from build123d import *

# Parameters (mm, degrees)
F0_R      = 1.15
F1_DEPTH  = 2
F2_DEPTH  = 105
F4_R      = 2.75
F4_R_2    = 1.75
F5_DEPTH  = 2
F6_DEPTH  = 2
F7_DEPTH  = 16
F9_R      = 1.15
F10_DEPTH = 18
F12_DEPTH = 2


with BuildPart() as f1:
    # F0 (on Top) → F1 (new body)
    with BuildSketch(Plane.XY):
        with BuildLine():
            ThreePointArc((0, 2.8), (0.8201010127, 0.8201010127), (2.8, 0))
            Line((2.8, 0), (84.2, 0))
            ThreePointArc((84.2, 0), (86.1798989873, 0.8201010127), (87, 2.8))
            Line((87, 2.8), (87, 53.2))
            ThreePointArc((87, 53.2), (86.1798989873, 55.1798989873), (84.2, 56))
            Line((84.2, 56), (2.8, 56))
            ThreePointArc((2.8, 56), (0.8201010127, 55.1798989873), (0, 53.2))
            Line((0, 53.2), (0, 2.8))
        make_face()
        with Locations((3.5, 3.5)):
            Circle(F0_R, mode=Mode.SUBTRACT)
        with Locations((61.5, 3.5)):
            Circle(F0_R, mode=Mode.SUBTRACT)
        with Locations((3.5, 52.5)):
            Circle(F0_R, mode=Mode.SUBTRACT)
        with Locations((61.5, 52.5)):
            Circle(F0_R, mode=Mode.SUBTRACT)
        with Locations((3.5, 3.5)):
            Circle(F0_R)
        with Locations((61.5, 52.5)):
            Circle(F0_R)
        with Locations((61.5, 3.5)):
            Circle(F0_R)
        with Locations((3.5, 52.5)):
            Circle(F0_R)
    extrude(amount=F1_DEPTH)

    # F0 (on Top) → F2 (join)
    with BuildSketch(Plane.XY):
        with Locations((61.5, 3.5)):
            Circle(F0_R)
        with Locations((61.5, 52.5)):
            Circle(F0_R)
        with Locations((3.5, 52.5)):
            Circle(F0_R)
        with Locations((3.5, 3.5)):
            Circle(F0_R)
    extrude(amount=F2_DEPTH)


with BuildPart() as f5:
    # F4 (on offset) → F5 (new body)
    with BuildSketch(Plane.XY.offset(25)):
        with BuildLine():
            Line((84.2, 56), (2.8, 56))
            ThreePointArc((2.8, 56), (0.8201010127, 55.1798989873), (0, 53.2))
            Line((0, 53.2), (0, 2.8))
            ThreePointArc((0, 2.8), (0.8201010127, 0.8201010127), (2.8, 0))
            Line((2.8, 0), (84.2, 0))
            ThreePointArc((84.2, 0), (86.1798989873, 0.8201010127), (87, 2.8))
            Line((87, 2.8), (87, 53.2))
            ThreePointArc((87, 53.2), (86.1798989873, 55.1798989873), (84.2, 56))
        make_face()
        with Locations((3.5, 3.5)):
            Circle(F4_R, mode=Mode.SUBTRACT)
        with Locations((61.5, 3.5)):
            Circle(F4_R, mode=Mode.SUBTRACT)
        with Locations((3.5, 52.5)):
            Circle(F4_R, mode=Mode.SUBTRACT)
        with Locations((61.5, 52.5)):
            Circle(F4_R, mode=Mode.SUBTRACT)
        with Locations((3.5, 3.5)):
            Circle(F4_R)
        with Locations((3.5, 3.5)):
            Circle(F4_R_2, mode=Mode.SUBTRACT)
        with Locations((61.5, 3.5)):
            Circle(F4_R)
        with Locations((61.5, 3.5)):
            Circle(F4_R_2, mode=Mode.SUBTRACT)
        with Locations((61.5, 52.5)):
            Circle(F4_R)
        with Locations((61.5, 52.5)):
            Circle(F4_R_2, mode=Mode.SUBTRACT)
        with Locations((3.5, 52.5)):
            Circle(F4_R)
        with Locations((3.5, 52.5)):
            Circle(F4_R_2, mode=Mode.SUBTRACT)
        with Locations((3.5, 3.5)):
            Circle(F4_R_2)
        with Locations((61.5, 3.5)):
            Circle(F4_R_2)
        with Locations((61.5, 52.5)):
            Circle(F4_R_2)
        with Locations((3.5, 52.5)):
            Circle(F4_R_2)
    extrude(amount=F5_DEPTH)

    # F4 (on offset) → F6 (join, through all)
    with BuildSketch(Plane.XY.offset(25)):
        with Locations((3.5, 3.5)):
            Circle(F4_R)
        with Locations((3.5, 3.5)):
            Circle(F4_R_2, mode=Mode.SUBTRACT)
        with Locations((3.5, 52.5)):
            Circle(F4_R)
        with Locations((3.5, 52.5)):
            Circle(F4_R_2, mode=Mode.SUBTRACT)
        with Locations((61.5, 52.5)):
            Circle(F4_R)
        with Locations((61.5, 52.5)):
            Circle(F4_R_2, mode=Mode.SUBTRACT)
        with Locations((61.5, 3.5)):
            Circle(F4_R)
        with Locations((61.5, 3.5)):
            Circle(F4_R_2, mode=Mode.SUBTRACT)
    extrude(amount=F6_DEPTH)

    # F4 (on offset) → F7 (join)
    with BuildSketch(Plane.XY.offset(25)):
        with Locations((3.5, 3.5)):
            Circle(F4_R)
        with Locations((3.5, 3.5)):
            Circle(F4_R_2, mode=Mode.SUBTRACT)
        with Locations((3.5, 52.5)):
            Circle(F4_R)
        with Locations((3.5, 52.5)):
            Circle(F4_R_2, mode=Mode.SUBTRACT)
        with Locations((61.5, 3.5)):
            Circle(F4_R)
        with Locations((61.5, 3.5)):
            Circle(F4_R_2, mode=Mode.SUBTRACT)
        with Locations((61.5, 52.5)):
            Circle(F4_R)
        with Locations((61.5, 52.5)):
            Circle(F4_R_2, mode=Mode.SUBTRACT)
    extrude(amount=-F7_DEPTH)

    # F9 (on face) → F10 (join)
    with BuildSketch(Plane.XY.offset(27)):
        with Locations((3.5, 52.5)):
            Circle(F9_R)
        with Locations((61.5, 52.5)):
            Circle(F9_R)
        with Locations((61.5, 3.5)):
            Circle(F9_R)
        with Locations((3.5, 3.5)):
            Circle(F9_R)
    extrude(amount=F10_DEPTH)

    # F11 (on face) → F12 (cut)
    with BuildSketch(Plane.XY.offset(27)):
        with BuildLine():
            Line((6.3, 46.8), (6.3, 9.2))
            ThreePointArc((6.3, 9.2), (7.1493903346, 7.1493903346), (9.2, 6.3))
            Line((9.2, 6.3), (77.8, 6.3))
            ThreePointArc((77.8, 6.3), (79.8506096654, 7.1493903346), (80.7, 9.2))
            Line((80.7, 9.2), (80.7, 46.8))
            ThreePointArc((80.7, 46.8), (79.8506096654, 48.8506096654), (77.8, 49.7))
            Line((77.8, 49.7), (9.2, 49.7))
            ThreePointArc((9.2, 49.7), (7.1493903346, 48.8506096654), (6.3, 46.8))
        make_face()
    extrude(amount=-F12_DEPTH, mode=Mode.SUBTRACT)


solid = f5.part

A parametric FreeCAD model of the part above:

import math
import FreeCAD as App
import Part
import Sketcher

doc = App.newDocument("Part")
params = doc.addObject("Spreadsheet::Sheet", "Params")
for row, (alias, value) in enumerate([
    ("sketch1_radius", "2.8 mm"),
    ("sketch1_width", "81.4 mm"),
    ("sketch1_height", "50.4 mm"),
    ("pad1_length", "2 mm"),
    ("sketch2_diameter", "2.3 mm"),
    ("pad2_length", "105 mm"),
    ("sketch3_radius", "2.8 mm"),
    ("sketch3_width", "81.4 mm"),
    ("sketch3_height", "50.4 mm"),
    ("pad3_length", "2 mm"),
    ("sketch4_diameter", "5.5 mm"),
    ("sketch4_diameter2", "3.5 mm"),
    ("sketch5_diameter", "5.5 mm"),
    ("sketch5_diameter2", "3.5 mm"),
    ("pad5_length", "16 mm"),
    ("sketch6_diameter", "2.3 mm"),
    ("pad6_length", "18 mm"),
    ("sketch7_radius", "2.9 mm"),
    ("sketch7_width", "68.6 mm"),
    ("sketch7_height", "37.6 mm"),
    ("pocket1_length", "2 mm"),
], start=1):
    params.set(f"A{row}", alias)
    params.set(f"B{row}", "=" + value)
    params.setAlias(f"B{row}", alias)

body = doc.addObject("PartDesign::Body", "Body")

sketch1 = body.newObject("Sketcher::SketchObject", "Sketch")
sketch1.AttachmentSupport = (doc.getObject("XY_Plane"), [""])
sketch1.MapMode = "FlatFace"
sketch1.addGeometry(Part.ArcOfCircle(Part.Circle(App.Vector(2.8, 2.8, 0), App.Vector(0, 0, 1), 2.8), math.radians(180), math.radians(270)), False)
sketch1.addGeometry(Part.LineSegment(App.Vector(2.8, 0, 0), App.Vector(84.2, 0, 0)), False)
sketch1.addGeometry(Part.ArcOfCircle(Part.Circle(App.Vector(84.2, 2.8, 0), App.Vector(0, 0, 1), 2.8), math.radians(-90), math.radians(0)), False)
sketch1.addGeometry(Part.LineSegment(App.Vector(87, 2.8, 0), App.Vector(87, 53.2, 0)), False)
sketch1.addGeometry(Part.ArcOfCircle(Part.Circle(App.Vector(84.2, 53.2, 0), App.Vector(0, 0, 1), 2.8), math.radians(0), math.radians(90)), False)
sketch1.addGeometry(Part.LineSegment(App.Vector(84.2, 56, 0), App.Vector(2.8, 56, 0)), False)
sketch1.addGeometry(Part.ArcOfCircle(Part.Circle(App.Vector(2.8, 53.2, 0), App.Vector(0, 0, 1), 2.8), math.radians(90), math.radians(180)), False)
sketch1.addGeometry(Part.LineSegment(App.Vector(0, 53.2, 0), App.Vector(0, 2.8, 0)), False)
sketch1.addConstraint(Sketcher.Constraint("Tangent", 0, 2, 1, 1))
sketch1.addConstraint(Sketcher.Constraint("Tangent", 1, 2, 2, 1))
sketch1.addConstraint(Sketcher.Constraint("Tangent", 2, 2, 3, 1))
sketch1.addConstraint(Sketcher.Constraint("Tangent", 3, 2, 4, 1))
sketch1.addConstraint(Sketcher.Constraint("Tangent", 4, 2, 5, 1))
sketch1.addConstraint(Sketcher.Constraint("Tangent", 5, 2, 6, 1))
sketch1.addConstraint(Sketcher.Constraint("Tangent", 6, 2, 7, 1))
sketch1.addConstraint(Sketcher.Constraint("Tangent", 7, 2, 0, 1))
sketch1.addConstraint(Sketcher.Constraint("Horizontal", 1))
sketch1.addConstraint(Sketcher.Constraint("Vertical", 3))
sketch1.addConstraint(Sketcher.Constraint("Horizontal", 5))
sketch1.addConstraint(Sketcher.Constraint("Vertical", 7))
sketch1.addConstraint(Sketcher.Constraint("Equal", 0, 2))
sketch1.addConstraint(Sketcher.Constraint("Equal", 2, 4))
sketch1.addConstraint(Sketcher.Constraint("Equal", 4, 6))
sketch1.addConstraint(Sketcher.Constraint("PointOnObject", 0, 2, -1))
sketch1.addConstraint(Sketcher.Constraint("PointOnObject", 6, 2, -2))
sketch1.addConstraint(Sketcher.Constraint("Radius", 0, 2.8))
sketch1.addConstraint(Sketcher.Constraint("DistanceX", 1, 1, 1, 2, 81.4))
sketch1.addConstraint(Sketcher.Constraint("DistanceY", 3, 1, 3, 2, 50.4))
sketch1.setExpression("Constraints[17]", "Params.sketch1_radius")
sketch1.setExpression("Constraints[18]", "Params.sketch1_width")
sketch1.setExpression("Constraints[19]", "Params.sketch1_height")
pad1 = body.newObject("PartDesign::Pad", "Pad")
pad1.Profile = sketch1
pad1.setExpression("Length", "Params.pad1_length")

sketch2 = body.newObject("Sketcher::SketchObject", "Sketch001")
sketch2.AttachmentSupport = (doc.getObject("XY_Plane"), [""])
sketch2.MapMode = "FlatFace"
sketch2.addGeometry(Part.Circle(App.Vector(61.5, 3.5, 0), App.Vector(0, 0, 1), 1.1), False)
sketch2.addGeometry(Part.Circle(App.Vector(61.5, 52.5, 0), App.Vector(0, 0, 1), 1.1), False)
sketch2.addGeometry(Part.Circle(App.Vector(3.5, 52.5, 0), App.Vector(0, 0, 1), 1.1), False)
sketch2.addGeometry(Part.Circle(App.Vector(3.5, 3.5, 0), App.Vector(0, 0, 1), 1.1), False)
sketch2.addConstraint(Sketcher.Constraint("Equal", 0, 1))
sketch2.addConstraint(Sketcher.Constraint("Equal", 1, 2))
sketch2.addConstraint(Sketcher.Constraint("Equal", 2, 3))
sketch2.addConstraint(Sketcher.Constraint("Horizontal", 1, 3, 2, 3))
sketch2.addConstraint(Sketcher.Constraint("Horizontal", 0, 3, 3, 3))
sketch2.addConstraint(Sketcher.Constraint("Vertical", 0, 3, 1, 3))
sketch2.addConstraint(Sketcher.Constraint("Vertical", 2, 3, 3, 3))
sketch2.addConstraint(Sketcher.Constraint("Diameter", 0, 2.3))
sketch2.addConstraint(Sketcher.Constraint("DistanceY", 0, 3, 1, 3, 49.0))
sketch2.addConstraint(Sketcher.Constraint("DistanceX", 2, 3, 1, 3, 58.0))
sketch2.addConstraint(Sketcher.Constraint("DistanceX", -1, 1, 0, 3, 61.5))
sketch2.addConstraint(Sketcher.Constraint("DistanceY", -1, 1, 0, 3, 3.5))
sketch2.setExpression("Constraints[7]", "Params.sketch2_diameter")
pad2 = body.newObject("PartDesign::Pad", "Pad001")
pad2.Profile = sketch2
pad2.setExpression("Length", "Params.pad2_length")
body2 = doc.addObject("PartDesign::Body", "Body001")

sketch3 = body2.newObject("Sketcher::SketchObject", "Sketch002")
sketch3.AttachmentSupport = (doc.getObject("XY_Plane001"), [""])
sketch3.MapMode = "FlatFace"
sketch3.AttachmentOffset = App.Placement(App.Vector(0, 0, 25), App.Rotation())
sketch3.addGeometry(Part.LineSegment(App.Vector(84.2, 56, 0), App.Vector(2.8, 56, 0)), False)
sketch3.addGeometry(Part.ArcOfCircle(Part.Circle(App.Vector(2.8, 53.2, 0), App.Vector(0, 0, 1), 2.8), math.radians(90), math.radians(180)), False)
sketch3.addGeometry(Part.LineSegment(App.Vector(0, 53.2, 0), App.Vector(0, 2.8, 0)), False)
sketch3.addGeometry(Part.ArcOfCircle(Part.Circle(App.Vector(2.8, 2.8, 0), App.Vector(0, 0, 1), 2.8), math.radians(180), math.radians(270)), False)
sketch3.addGeometry(Part.LineSegment(App.Vector(2.8, 0, 0), App.Vector(84.2, 0, 0)), False)
sketch3.addGeometry(Part.ArcOfCircle(Part.Circle(App.Vector(84.2, 2.8, 0), App.Vector(0, 0, 1), 2.8), math.radians(-90), math.radians(0)), False)
sketch3.addGeometry(Part.LineSegment(App.Vector(87, 2.8, 0), App.Vector(87, 53.2, 0)), False)
sketch3.addGeometry(Part.ArcOfCircle(Part.Circle(App.Vector(84.2, 53.2, 0), App.Vector(0, 0, 1), 2.8), math.radians(0), math.radians(90)), False)
sketch3.addConstraint(Sketcher.Constraint("Tangent", 0, 2, 1, 1))
sketch3.addConstraint(Sketcher.Constraint("Tangent", 1, 2, 2, 1))
sketch3.addConstraint(Sketcher.Constraint("Tangent", 2, 2, 3, 1))
sketch3.addConstraint(Sketcher.Constraint("Tangent", 3, 2, 4, 1))
sketch3.addConstraint(Sketcher.Constraint("Tangent", 4, 2, 5, 1))
sketch3.addConstraint(Sketcher.Constraint("Tangent", 5, 2, 6, 1))
sketch3.addConstraint(Sketcher.Constraint("Tangent", 6, 2, 7, 1))
sketch3.addConstraint(Sketcher.Constraint("Tangent", 7, 2, 0, 1))
sketch3.addConstraint(Sketcher.Constraint("Horizontal", 0))
sketch3.addConstraint(Sketcher.Constraint("Vertical", 2))
sketch3.addConstraint(Sketcher.Constraint("Horizontal", 4))
sketch3.addConstraint(Sketcher.Constraint("Vertical", 6))
sketch3.addConstraint(Sketcher.Constraint("Equal", 1, 3))
sketch3.addConstraint(Sketcher.Constraint("Equal", 3, 5))
sketch3.addConstraint(Sketcher.Constraint("Equal", 5, 7))
sketch3.addConstraint(Sketcher.Constraint("PointOnObject", 1, 2, -2))
sketch3.addConstraint(Sketcher.Constraint("PointOnObject", 3, 2, -1))
sketch3.addConstraint(Sketcher.Constraint("Radius", 1, 2.8))
sketch3.addConstraint(Sketcher.Constraint("DistanceX", 0, 2, 0, 1, 81.4))
sketch3.addConstraint(Sketcher.Constraint("DistanceY", 2, 2, 2, 1, 50.4))
sketch3.setExpression("Constraints[17]", "Params.sketch3_radius")
sketch3.setExpression("Constraints[18]", "Params.sketch3_width")
sketch3.setExpression("Constraints[19]", "Params.sketch3_height")
pad3 = body2.newObject("PartDesign::Pad", "Pad002")
pad3.Profile = sketch3
pad3.setExpression("Length", "Params.pad3_length")

sketch4 = body2.newObject("Sketcher::SketchObject", "Sketch003")
sketch4.AttachmentSupport = (doc.getObject("XY_Plane001"), [""])
sketch4.MapMode = "FlatFace"
sketch4.AttachmentOffset = App.Placement(App.Vector(0, 0, 25), App.Rotation())
sketch4.addGeometry(Part.Circle(App.Vector(3.5, 3.5, 0), App.Vector(0, 0, 1), 2.8), False)
sketch4.addGeometry(Part.Circle(App.Vector(3.5, 3.5, 0), App.Vector(0, 0, 1), 1.8), False)
sketch4.addGeometry(Part.Circle(App.Vector(3.5, 52.5, 0), App.Vector(0, 0, 1), 2.8), False)
sketch4.addGeometry(Part.Circle(App.Vector(3.5, 52.5, 0), App.Vector(0, 0, 1), 1.8), False)
sketch4.addGeometry(Part.Circle(App.Vector(61.5, 52.5, 0), App.Vector(0, 0, 1), 2.8), False)
sketch4.addGeometry(Part.Circle(App.Vector(61.5, 52.5, 0), App.Vector(0, 0, 1), 1.8), False)
sketch4.addGeometry(Part.Circle(App.Vector(61.5, 3.5, 0), App.Vector(0, 0, 1), 2.8), False)
sketch4.addGeometry(Part.Circle(App.Vector(61.5, 3.5, 0), App.Vector(0, 0, 1), 1.8), False)
sketch4.addConstraint(Sketcher.Constraint("Coincident", 1, 3, 0, 3))
sketch4.addConstraint(Sketcher.Constraint("Coincident", 3, 3, 2, 3))
sketch4.addConstraint(Sketcher.Constraint("Coincident", 5, 3, 4, 3))
sketch4.addConstraint(Sketcher.Constraint("Coincident", 7, 3, 6, 3))
sketch4.addConstraint(Sketcher.Constraint("Equal", 0, 2))
sketch4.addConstraint(Sketcher.Constraint("Equal", 1, 3))
sketch4.addConstraint(Sketcher.Constraint("Equal", 2, 4))
sketch4.addConstraint(Sketcher.Constraint("Equal", 3, 5))
sketch4.addConstraint(Sketcher.Constraint("Equal", 4, 6))
sketch4.addConstraint(Sketcher.Constraint("Equal", 5, 7))
sketch4.addConstraint(Sketcher.Constraint("Horizontal", 3, 3, 4, 3))
sketch4.addConstraint(Sketcher.Constraint("Horizontal", 1, 3, 6, 3))
sketch4.addConstraint(Sketcher.Constraint("Vertical", 1, 3, 2, 3))
sketch4.addConstraint(Sketcher.Constraint("Vertical", 5, 3, 6, 3))
sketch4.addConstraint(Sketcher.Constraint("Diameter", 0, 5.5))
sketch4.addConstraint(Sketcher.Constraint("Diameter", 1, 3.5))
sketch4.addConstraint(Sketcher.Constraint("DistanceY", 0, 3, 2, 3, 49.0))
sketch4.addConstraint(Sketcher.Constraint("DistanceX", 2, 3, 4, 3, 58.0))
sketch4.addConstraint(Sketcher.Constraint("DistanceX", -1, 1, 0, 3, 3.5))
sketch4.addConstraint(Sketcher.Constraint("DistanceY", -1, 1, 0, 3, 3.5))
sketch4.setExpression("Constraints[14]", "Params.sketch4_diameter")
sketch4.setExpression("Constraints[15]", "Params.sketch4_diameter2")
pad4 = body2.newObject("PartDesign::Pad", "Pad003")
pad4.Profile = sketch4
pad4.Type = "UpToLast"

sketch5 = body2.newObject("Sketcher::SketchObject", "Sketch004")
sketch5.AttachmentSupport = (doc.getObject("XY_Plane001"), [""])
sketch5.MapMode = "FlatFace"
sketch5.AttachmentOffset = App.Placement(App.Vector(0, 0, 25), App.Rotation())
sketch5.addGeometry(Part.Circle(App.Vector(3.5, 3.5, 0), App.Vector(0, 0, 1), 2.8), False)
sketch5.addGeometry(Part.Circle(App.Vector(3.5, 3.5, 0), App.Vector(0, 0, 1), 1.8), False)
sketch5.addGeometry(Part.Circle(App.Vector(3.5, 52.5, 0), App.Vector(0, 0, 1), 2.8), False)
sketch5.addGeometry(Part.Circle(App.Vector(3.5, 52.5, 0), App.Vector(0, 0, 1), 1.8), False)
sketch5.addGeometry(Part.Circle(App.Vector(61.5, 3.5, 0), App.Vector(0, 0, 1), 2.8), False)
sketch5.addGeometry(Part.Circle(App.Vector(61.5, 3.5, 0), App.Vector(0, 0, 1), 1.8), False)
sketch5.addGeometry(Part.Circle(App.Vector(61.5, 52.5, 0), App.Vector(0, 0, 1), 2.8), False)
sketch5.addGeometry(Part.Circle(App.Vector(61.5, 52.5, 0), App.Vector(0, 0, 1), 1.8), False)
sketch5.addConstraint(Sketcher.Constraint("Coincident", 1, 3, 0, 3))
sketch5.addConstraint(Sketcher.Constraint("Coincident", 3, 3, 2, 3))
sketch5.addConstraint(Sketcher.Constraint("Coincident", 5, 3, 4, 3))
sketch5.addConstraint(Sketcher.Constraint("Coincident", 7, 3, 6, 3))
sketch5.addConstraint(Sketcher.Constraint("Equal", 0, 2))
sketch5.addConstraint(Sketcher.Constraint("Equal", 1, 3))
sketch5.addConstraint(Sketcher.Constraint("Equal", 2, 4))
sketch5.addConstraint(Sketcher.Constraint("Equal", 3, 5))
sketch5.addConstraint(Sketcher.Constraint("Equal", 4, 6))
sketch5.addConstraint(Sketcher.Constraint("Equal", 5, 7))
sketch5.addConstraint(Sketcher.Constraint("Horizontal", 1, 3, 4, 3))
sketch5.addConstraint(Sketcher.Constraint("Horizontal", 3, 3, 6, 3))
sketch5.addConstraint(Sketcher.Constraint("Vertical", 1, 3, 2, 3))
sketch5.addConstraint(Sketcher.Constraint("Vertical", 5, 3, 6, 3))
sketch5.addConstraint(Sketcher.Constraint("Diameter", 0, 5.5))
sketch5.addConstraint(Sketcher.Constraint("Diameter", 1, 3.5))
sketch5.addConstraint(Sketcher.Constraint("DistanceY", 0, 3, 2, 3, 49.0))
sketch5.addConstraint(Sketcher.Constraint("DistanceX", 0, 3, 4, 3, 58.0))
sketch5.addConstraint(Sketcher.Constraint("DistanceX", -1, 1, 0, 3, 3.5))
sketch5.addConstraint(Sketcher.Constraint("DistanceY", -1, 1, 0, 3, 3.5))
sketch5.setExpression("Constraints[14]", "Params.sketch5_diameter")
sketch5.setExpression("Constraints[15]", "Params.sketch5_diameter2")
pad5 = body2.newObject("PartDesign::Pad", "Pad004")
pad5.Profile = sketch5
pad5.setExpression("Length", "Params.pad5_length")
pad5.Reversed = True

sketch6 = body2.newObject("Sketcher::SketchObject", "Sketch005")
sketch6.AttachmentSupport = (doc.getObject("XY_Plane001"), [""])
sketch6.MapMode = "FlatFace"
sketch6.AttachmentOffset = App.Placement(App.Vector(0, 0, 27), App.Rotation())
sketch6.addGeometry(Part.Circle(App.Vector(3.5, 52.5, 0), App.Vector(0, 0, 1), 1.1), False)
sketch6.addGeometry(Part.Circle(App.Vector(61.5, 52.5, 0), App.Vector(0, 0, 1), 1.1), False)
sketch6.addGeometry(Part.Circle(App.Vector(61.5, 3.5, 0), App.Vector(0, 0, 1), 1.1), False)
sketch6.addGeometry(Part.Circle(App.Vector(3.5, 3.5, 0), App.Vector(0, 0, 1), 1.1), False)
sketch6.addConstraint(Sketcher.Constraint("Equal", 0, 1))
sketch6.addConstraint(Sketcher.Constraint("Equal", 1, 2))
sketch6.addConstraint(Sketcher.Constraint("Equal", 2, 3))
sketch6.addConstraint(Sketcher.Constraint("Horizontal", 0, 3, 1, 3))
sketch6.addConstraint(Sketcher.Constraint("Horizontal", 2, 3, 3, 3))
sketch6.addConstraint(Sketcher.Constraint("Vertical", 1, 3, 2, 3))
sketch6.addConstraint(Sketcher.Constraint("Vertical", 0, 3, 3, 3))
sketch6.addConstraint(Sketcher.Constraint("Diameter", 0, 2.3))
sketch6.addConstraint(Sketcher.Constraint("DistanceX", 0, 3, 1, 3, 58.0))
sketch6.addConstraint(Sketcher.Constraint("DistanceY", 2, 3, 1, 3, 49.0))
sketch6.addConstraint(Sketcher.Constraint("DistanceX", -1, 1, 0, 3, 3.5))
sketch6.addConstraint(Sketcher.Constraint("DistanceY", -1, 1, 0, 3, 52.5))
sketch6.setExpression("Constraints[7]", "Params.sketch6_diameter")
pad6 = body2.newObject("PartDesign::Pad", "Pad005")
pad6.Profile = sketch6
pad6.setExpression("Length", "Params.pad6_length")

sketch7 = body2.newObject("Sketcher::SketchObject", "Sketch006")
sketch7.AttachmentSupport = (doc.getObject("XY_Plane001"), [""])
sketch7.MapMode = "FlatFace"
sketch7.AttachmentOffset = App.Placement(App.Vector(0, 0, 27), App.Rotation())
sketch7.addGeometry(Part.LineSegment(App.Vector(6.3, 46.8, 0), App.Vector(6.3, 9.2, 0)), False)
sketch7.addGeometry(Part.ArcOfCircle(Part.Circle(App.Vector(9.2, 9.2, 0), App.Vector(0, 0, 1), 2.9), math.radians(180), math.radians(270)), False)
sketch7.addGeometry(Part.LineSegment(App.Vector(9.2, 6.3, 0), App.Vector(77.8, 6.3, 0)), False)
sketch7.addGeometry(Part.ArcOfCircle(Part.Circle(App.Vector(77.8, 9.2, 0), App.Vector(0, 0, 1), 2.9), math.radians(-90), math.radians(0)), False)
sketch7.addGeometry(Part.LineSegment(App.Vector(80.7, 9.2, 0), App.Vector(80.7, 46.8, 0)), False)
sketch7.addGeometry(Part.ArcOfCircle(Part.Circle(App.Vector(77.8, 46.8, 0), App.Vector(0, 0, 1), 2.9), math.radians(0), math.radians(90)), False)
sketch7.addGeometry(Part.LineSegment(App.Vector(77.8, 49.7, 0), App.Vector(9.2, 49.7, 0)), False)
sketch7.addGeometry(Part.ArcOfCircle(Part.Circle(App.Vector(9.2, 46.8, 0), App.Vector(0, 0, 1), 2.9), math.radians(90), math.radians(180)), False)
sketch7.addConstraint(Sketcher.Constraint("Tangent", 0, 2, 1, 1))
sketch7.addConstraint(Sketcher.Constraint("Tangent", 1, 2, 2, 1))
sketch7.addConstraint(Sketcher.Constraint("Tangent", 2, 2, 3, 1))
sketch7.addConstraint(Sketcher.Constraint("Tangent", 3, 2, 4, 1))
sketch7.addConstraint(Sketcher.Constraint("Tangent", 4, 2, 5, 1))
sketch7.addConstraint(Sketcher.Constraint("Tangent", 5, 2, 6, 1))
sketch7.addConstraint(Sketcher.Constraint("Tangent", 6, 2, 7, 1))
sketch7.addConstraint(Sketcher.Constraint("Tangent", 7, 2, 0, 1))
sketch7.addConstraint(Sketcher.Constraint("Vertical", 0))
sketch7.addConstraint(Sketcher.Constraint("Horizontal", 2))
sketch7.addConstraint(Sketcher.Constraint("Vertical", 4))
sketch7.addConstraint(Sketcher.Constraint("Horizontal", 6))
sketch7.addConstraint(Sketcher.Constraint("Equal", 1, 3))
sketch7.addConstraint(Sketcher.Constraint("Equal", 3, 5))
sketch7.addConstraint(Sketcher.Constraint("Equal", 5, 7))
sketch7.addConstraint(Sketcher.Constraint("Radius", 1, 2.9))
sketch7.addConstraint(Sketcher.Constraint("DistanceX", 2, 1, 2, 2, 68.6))
sketch7.addConstraint(Sketcher.Constraint("DistanceY", 0, 2, 0, 1, 37.6))
sketch7.addConstraint(Sketcher.Constraint("DistanceX", -1, 1, 1, 3, 9.2))
sketch7.addConstraint(Sketcher.Constraint("DistanceY", -1, 1, 1, 3, 9.2))
sketch7.setExpression("Constraints[15]", "Params.sketch7_radius")
sketch7.setExpression("Constraints[16]", "Params.sketch7_width")
sketch7.setExpression("Constraints[17]", "Params.sketch7_height")
pocket1 = body2.newObject("PartDesign::Pocket", "Pocket")
pocket1.Profile = sketch7
pocket1.setExpression("Length", "Params.pocket1_length")
body.Visibility = False

doc.recompute()
